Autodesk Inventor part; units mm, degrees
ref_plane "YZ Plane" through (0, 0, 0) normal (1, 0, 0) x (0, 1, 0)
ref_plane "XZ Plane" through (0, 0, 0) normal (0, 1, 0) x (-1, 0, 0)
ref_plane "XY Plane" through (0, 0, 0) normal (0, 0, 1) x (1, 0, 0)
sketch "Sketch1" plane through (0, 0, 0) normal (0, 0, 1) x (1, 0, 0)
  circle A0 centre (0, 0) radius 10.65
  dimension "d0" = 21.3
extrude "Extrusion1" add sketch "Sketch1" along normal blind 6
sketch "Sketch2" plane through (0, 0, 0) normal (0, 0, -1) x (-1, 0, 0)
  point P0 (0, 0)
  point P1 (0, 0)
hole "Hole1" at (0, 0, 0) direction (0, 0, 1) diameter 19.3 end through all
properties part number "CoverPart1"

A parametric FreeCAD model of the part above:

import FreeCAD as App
import Part
import Sketcher
Q = App.Units.Quantity

doc = App.newDocument("Part")
body = doc.addObject("PartDesign::Body", "Body")

sketch1 = doc.addObject("Sketcher::SketchObject", "Sketch")
body.addObject(sketch1)
sketch1.AttachmentSupport = (doc.XY_Plane, [""])
sketch1.MapMode = "FlatFace"
sketch1.addGeometry(Part.Circle(App.Vector(0, 0, 0), App.Vector(0, 0, 1), 11), False)
sketch1.addConstraint([
    Sketcher.Constraint("Coincident", 0, 3, -1, 1),
    Sketcher.Constraint("Diameter", 0, Q("21.3 mm")),
])
pad1 = doc.addObject("PartDesign::Pad", "Pad")
body.addObject(pad1)
pad1.Profile = sketch1
pad1.Length = 6

sketch2 = doc.addObject("Sketcher::SketchObject", "Sketch001")
body.addObject(sketch2)
sketch2.AttachmentSupport = (doc.XY_Plane, [""])
sketch2.MapMode = "FlatFace"
sketch2.addGeometry(Part.Circle(App.Vector(0, 0, 0), App.Vector(0, 0, 1), 10), False)
sketch2.addConstraint([
    Sketcher.Constraint("Coincident", 0, 3, -1, 1),
    Sketcher.Constraint("Diameter", 0, Q("19.3 mm")),
])
doc.recompute()
hole = doc.addObject("PartDesign::Hole", "Hole")
body.addObject(hole)
hole.Profile = sketch2
hole.ThreadType = "None"
hole.Diameter = 19.3
hole.DepthType = "ThroughAll"
hole.Reversed = True

doc.recompute()
